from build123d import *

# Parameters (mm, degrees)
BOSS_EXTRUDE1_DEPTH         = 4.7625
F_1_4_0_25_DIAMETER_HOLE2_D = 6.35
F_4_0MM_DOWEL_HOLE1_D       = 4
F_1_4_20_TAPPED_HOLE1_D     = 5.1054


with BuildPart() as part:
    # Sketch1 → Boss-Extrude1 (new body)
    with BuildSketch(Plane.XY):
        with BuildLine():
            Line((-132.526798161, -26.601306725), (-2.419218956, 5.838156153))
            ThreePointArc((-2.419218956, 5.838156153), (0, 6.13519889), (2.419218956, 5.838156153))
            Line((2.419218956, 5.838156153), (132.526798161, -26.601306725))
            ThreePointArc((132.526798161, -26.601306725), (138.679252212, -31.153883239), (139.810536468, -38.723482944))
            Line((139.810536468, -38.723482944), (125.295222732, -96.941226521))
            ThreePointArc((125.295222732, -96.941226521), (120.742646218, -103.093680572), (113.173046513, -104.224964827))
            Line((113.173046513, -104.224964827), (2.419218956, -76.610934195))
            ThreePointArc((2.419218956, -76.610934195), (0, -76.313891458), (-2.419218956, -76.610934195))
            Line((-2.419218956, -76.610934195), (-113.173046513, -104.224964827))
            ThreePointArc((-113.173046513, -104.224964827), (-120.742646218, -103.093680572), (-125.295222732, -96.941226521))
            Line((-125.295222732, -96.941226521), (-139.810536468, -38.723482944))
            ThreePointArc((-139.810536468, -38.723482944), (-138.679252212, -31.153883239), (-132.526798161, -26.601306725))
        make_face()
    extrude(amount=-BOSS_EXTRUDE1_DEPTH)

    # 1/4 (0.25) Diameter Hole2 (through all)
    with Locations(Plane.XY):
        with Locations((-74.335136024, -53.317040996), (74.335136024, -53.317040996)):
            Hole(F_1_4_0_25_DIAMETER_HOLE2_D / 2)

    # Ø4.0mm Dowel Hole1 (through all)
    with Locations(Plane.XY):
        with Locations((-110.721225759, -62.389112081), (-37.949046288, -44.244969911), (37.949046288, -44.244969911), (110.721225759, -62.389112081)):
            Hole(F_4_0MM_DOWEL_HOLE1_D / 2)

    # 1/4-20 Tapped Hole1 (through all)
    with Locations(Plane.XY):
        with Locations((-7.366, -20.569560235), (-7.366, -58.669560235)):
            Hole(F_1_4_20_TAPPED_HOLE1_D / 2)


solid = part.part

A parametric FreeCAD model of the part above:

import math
import FreeCAD as App
import Part
import Sketcher

V = App.Vector
Q = App.Units.Quantity

doc = App.newDocument("Part")
params = doc.addObject("Spreadsheet::Sheet", "Params")
for row, (alias, value) in enumerate([
    ("sketch1_radius", "10 mm"),
    ("sketch1_length", "60 mm"),
    ("pad1_length", "4.7625 mm"),
    ("sketch2_diameter", "6.35 mm"),
    ("hole_diameter", "6.35 mm"),
    ("sketch3_diameter", "4 mm"),
    ("hole2_diameter", "4 mm"),
    ("hole3_diameter", "5.1054 mm"),
], start=1):
    params.set(f"A{row}", alias)
    params.set(f"B{row}", "=" + value)
    params.setAlias(f"B{row}", alias)

body = doc.addObject("PartDesign::Body", "Body")

sketch1 = doc.addObject("Sketcher::SketchObject", "Sketch")
body.addObject(sketch1)
sketch1.AttachmentSupport = (doc.XY_Plane, [""])
sketch1.MapMode = "FlatFace"
sketch1.addGeometry([
    Part.LineSegment(V(-2.4, 5.8, 0), V(-132.5, -26.6, 0)),
    Part.ArcOfCircle(Part.Circle(V(-130.1, -36.3, 0), V(0, 0, 1), 10), math.radians(104), math.radians(194)),
    Part.LineSegment(V(-139.8, -38.7, 0), V(-125.3, -96.9, 0)),
    Part.ArcOfCircle(Part.Circle(V(-115.6, -94.5, 0), V(0, 0, 1), 10), math.radians(-166), math.radians(-76)),
    Part.LineSegment(V(-113.2, -104.2, 0), V(-2.4, -76.6, 0)),
    Part.ArcOfCircle(Part.Circle(V(0, -86.3, 0), V(0, 0, 1), 10), math.radians(76), math.radians(104)),
    Part.LineSegment(V(2.4, -76.6, 0), V(113.2, -104.2, 0)),
    Part.ArcOfCircle(Part.Circle(V(115.6, -94.5, 0), V(0, 0, 1), 10), math.radians(-104), math.radians(-14)),
    Part.LineSegment(V(125.3, -96.9, 0), V(139.8, -38.7, 0)),
    Part.ArcOfCircle(Part.Circle(V(130.1, -36.3, 0), V(0, 0, 1), 10), math.radians(-14), math.radians(76)),
    Part.LineSegment(V(132.5, -26.6, 0), V(2.4, 5.8, 0)),
    Part.ArcOfCircle(Part.Circle(V(0, -3.9, 0), V(0, 0, 1), 10), math.radians(76), math.radians(104)),
], False)
sketch1.addConstraint([
    Sketcher.Constraint("Tangent", 0, 2, 1, 1),
    Sketcher.Constraint("Tangent", 1, 2, 2, 1),
    Sketcher.Constraint("Tangent", 2, 2, 3, 1),
    Sketcher.Constraint("Tangent", 3, 2, 4, 1),
    Sketcher.Constraint("Tangent", 4, 2, 5, 2),
    Sketcher.Constraint("Tangent", 5, 1, 6, 1),
    Sketcher.Constraint("Tangent", 6, 2, 7, 1),
    Sketcher.Constraint("Tangent", 7, 2, 8, 1),
    Sketcher.Constraint("Tangent", 8, 2, 9, 1),
    Sketcher.Constraint("Tangent", 9, 2, 10, 1),
    Sketcher.Constraint("Tangent", 10, 2, 11, 1),
    Sketcher.Constraint("Tangent", 11, 2, 0, 1),
    Sketcher.Constraint("Equal", 1, 3),
    Sketcher.Constraint("Equal", 3, 5),
    Sketcher.Constraint("Equal", 5, 7),
    Sketcher.Constraint("Equal", 7, 9),
    Sketcher.Constraint("Equal", 9, 11),
    Sketcher.Constraint("Symmetric", 3, 3, 7, 3, -2),
    Sketcher.Constraint("Symmetric", 1, 3, 9, 3, -2),
    Sketcher.Constraint("PointOnObject", 5, 3, -2),
    Sketcher.Constraint("PointOnObject", 11, 3, -2),
    Sketcher.Constraint("Perpendicular", 0, 2),
    Sketcher.Constraint("Perpendicular", 2, 4),
    Sketcher.Constraint("Radius", 1, 10.0),
    Sketcher.Constraint("Angle", 0, Q("-166 deg")),
    Sketcher.Constraint("Distance", 2, 60.0),
    Sketcher.Constraint("DistanceY", 11, 3, -1, 1, 3.864801),
    Sketcher.Constraint("DistanceX", 0, 2, -1, 1, 132.526798),
])
sketch1.setExpression("Constraints[23]", "Params.sketch1_radius")
sketch1.setExpression("Constraints[25]", "Params.sketch1_length")
pad1 = doc.addObject("PartDesign::Pad", "Pad")
body.addObject(pad1)
pad1.Profile = sketch1
pad1.setExpression("Length", "Params.pad1_length")
pad1.Reversed = True

sketch2 = doc.addObject("Sketcher::SketchObject", "Sketch001")
body.addObject(sketch2)
sketch2.AttachmentSupport = (doc.XY_Plane, [""])
sketch2.MapMode = "FlatFace"
sketch2.addGeometry([
    Part.Circle(V(-74.3, -53.3, 0), V(0, 0, 1), 3.2),
    Part.Circle(V(74.3, -53.3, 0), V(0, 0, 1), 3.2),
], False)
sketch2.addConstraint([
    Sketcher.Constraint("Equal", 0, 1),
    Sketcher.Constraint("Symmetric", 0, 3, 1, 3, -2),
    Sketcher.Constraint("Diameter", 0, 6.35),
    Sketcher.Constraint("DistanceY", 0, 3, -1, 1, 53.317041),
    Sketcher.Constraint("DistanceX", 0, 3, -1, 1, 74.335136),
])
sketch2.setExpression("Constraints[2]", "Params.sketch2_diameter")
doc.recompute()
hole = doc.addObject("PartDesign::Hole", "Hole")
body.addObject(hole)
hole.Profile = sketch2
hole.ThreadType = "None"
hole.setExpression("Diameter", "Params.hole_diameter")
hole.DepthType = "ThroughAll"

sketch3 = doc.addObject("Sketcher::SketchObject", "Sketch002")
body.addObject(sketch3)
sketch3.AttachmentSupport = (doc.XY_Plane, [""])
sketch3.MapMode = "FlatFace"
sketch3.addGeometry([
    Part.Circle(V(-110.7, -62.4, 0), V(0, 0, 1), 2),
    Part.Circle(V(-37.9, -44.2, 0), V(0, 0, 1), 2),
    Part.Circle(V(37.9, -44.2, 0), V(0, 0, 1), 2),
    Part.Circle(V(110.7, -62.4, 0), V(0, 0, 1), 2),
], False)
sketch3.addConstraint([
    Sketcher.Constraint("Equal", 0, 1),
    Sketcher.Constraint("Equal", 1, 2),
    Sketcher.Constraint("Equal", 2, 3),
    Sketcher.Constraint("Symmetric", 1, 3, 2, 3, -2),
    Sketcher.Constraint("Symmetric", 0, 3, 3, 3, -2),
    Sketcher.Constraint("Diameter", 0, 4.0),
    Sketcher.Constraint("DistanceY", 1, 3, -1, 1, 44.24497),
    Sketcher.Constraint("DistanceX", 0, 3, 1, 3, 72.772179),
    Sketcher.Constraint("DistanceX", 0, 3, 3, 3, 221.442452),
    Sketcher.Constraint("DistanceY", 0, 3, -1, 1, 62.389112),
])
sketch3.setExpression("Constraints[5]", "Params.sketch3_diameter")
doc.recompute()
hole2 = doc.addObject("PartDesign::Hole", "Hole001")
body.addObject(hole2)
hole2.Profile = sketch3
hole2.ThreadType = "None"
hole2.setExpression("Diameter", "Params.hole2_diameter")
hole2.DepthType = "ThroughAll"

sketch4 = doc.addObject("Sketcher::SketchObject", "Sketch003")
body.addObject(sketch4)
sketch4.AttachmentSupport = (doc.XY_Plane, [""])
sketch4.MapMode = "FlatFace"
sketch4.addGeometry([
    Part.Circle(V(-7.4, -20.6, 0), V(0, 0, 1), 2.6),
    Part.Circle(V(-7.4, -58.7, 0), V(0, 0, 1), 2.6),
], False)
sketch4.addConstraint([
    Sketcher.Constraint("Equal", 0, 1),
    Sketcher.Constraint("Vertical", 0, 3, 1, 3),
    Sketcher.Constraint("Diameter", 0, 5.1054),
    Sketcher.Constraint("DistanceY", 1, 3, 0, 3, 38.1),
    Sketcher.Constraint("DistanceX", 0, 3, -1, 1, 7.366),
    Sketcher.Constraint("DistanceY", 0, 3, -1, 1, 20.56956),
])
doc.recompute()
hole3 = doc.addObject("PartDesign::Hole", "Hole002")
body.addObject(hole3)
hole3.Profile = sketch4
hole3.ThreadType = "None"
hole3.setExpression("Diameter", "Params.hole3_diameter")
hole3.DepthType = "ThroughAll"

doc.recompute()
